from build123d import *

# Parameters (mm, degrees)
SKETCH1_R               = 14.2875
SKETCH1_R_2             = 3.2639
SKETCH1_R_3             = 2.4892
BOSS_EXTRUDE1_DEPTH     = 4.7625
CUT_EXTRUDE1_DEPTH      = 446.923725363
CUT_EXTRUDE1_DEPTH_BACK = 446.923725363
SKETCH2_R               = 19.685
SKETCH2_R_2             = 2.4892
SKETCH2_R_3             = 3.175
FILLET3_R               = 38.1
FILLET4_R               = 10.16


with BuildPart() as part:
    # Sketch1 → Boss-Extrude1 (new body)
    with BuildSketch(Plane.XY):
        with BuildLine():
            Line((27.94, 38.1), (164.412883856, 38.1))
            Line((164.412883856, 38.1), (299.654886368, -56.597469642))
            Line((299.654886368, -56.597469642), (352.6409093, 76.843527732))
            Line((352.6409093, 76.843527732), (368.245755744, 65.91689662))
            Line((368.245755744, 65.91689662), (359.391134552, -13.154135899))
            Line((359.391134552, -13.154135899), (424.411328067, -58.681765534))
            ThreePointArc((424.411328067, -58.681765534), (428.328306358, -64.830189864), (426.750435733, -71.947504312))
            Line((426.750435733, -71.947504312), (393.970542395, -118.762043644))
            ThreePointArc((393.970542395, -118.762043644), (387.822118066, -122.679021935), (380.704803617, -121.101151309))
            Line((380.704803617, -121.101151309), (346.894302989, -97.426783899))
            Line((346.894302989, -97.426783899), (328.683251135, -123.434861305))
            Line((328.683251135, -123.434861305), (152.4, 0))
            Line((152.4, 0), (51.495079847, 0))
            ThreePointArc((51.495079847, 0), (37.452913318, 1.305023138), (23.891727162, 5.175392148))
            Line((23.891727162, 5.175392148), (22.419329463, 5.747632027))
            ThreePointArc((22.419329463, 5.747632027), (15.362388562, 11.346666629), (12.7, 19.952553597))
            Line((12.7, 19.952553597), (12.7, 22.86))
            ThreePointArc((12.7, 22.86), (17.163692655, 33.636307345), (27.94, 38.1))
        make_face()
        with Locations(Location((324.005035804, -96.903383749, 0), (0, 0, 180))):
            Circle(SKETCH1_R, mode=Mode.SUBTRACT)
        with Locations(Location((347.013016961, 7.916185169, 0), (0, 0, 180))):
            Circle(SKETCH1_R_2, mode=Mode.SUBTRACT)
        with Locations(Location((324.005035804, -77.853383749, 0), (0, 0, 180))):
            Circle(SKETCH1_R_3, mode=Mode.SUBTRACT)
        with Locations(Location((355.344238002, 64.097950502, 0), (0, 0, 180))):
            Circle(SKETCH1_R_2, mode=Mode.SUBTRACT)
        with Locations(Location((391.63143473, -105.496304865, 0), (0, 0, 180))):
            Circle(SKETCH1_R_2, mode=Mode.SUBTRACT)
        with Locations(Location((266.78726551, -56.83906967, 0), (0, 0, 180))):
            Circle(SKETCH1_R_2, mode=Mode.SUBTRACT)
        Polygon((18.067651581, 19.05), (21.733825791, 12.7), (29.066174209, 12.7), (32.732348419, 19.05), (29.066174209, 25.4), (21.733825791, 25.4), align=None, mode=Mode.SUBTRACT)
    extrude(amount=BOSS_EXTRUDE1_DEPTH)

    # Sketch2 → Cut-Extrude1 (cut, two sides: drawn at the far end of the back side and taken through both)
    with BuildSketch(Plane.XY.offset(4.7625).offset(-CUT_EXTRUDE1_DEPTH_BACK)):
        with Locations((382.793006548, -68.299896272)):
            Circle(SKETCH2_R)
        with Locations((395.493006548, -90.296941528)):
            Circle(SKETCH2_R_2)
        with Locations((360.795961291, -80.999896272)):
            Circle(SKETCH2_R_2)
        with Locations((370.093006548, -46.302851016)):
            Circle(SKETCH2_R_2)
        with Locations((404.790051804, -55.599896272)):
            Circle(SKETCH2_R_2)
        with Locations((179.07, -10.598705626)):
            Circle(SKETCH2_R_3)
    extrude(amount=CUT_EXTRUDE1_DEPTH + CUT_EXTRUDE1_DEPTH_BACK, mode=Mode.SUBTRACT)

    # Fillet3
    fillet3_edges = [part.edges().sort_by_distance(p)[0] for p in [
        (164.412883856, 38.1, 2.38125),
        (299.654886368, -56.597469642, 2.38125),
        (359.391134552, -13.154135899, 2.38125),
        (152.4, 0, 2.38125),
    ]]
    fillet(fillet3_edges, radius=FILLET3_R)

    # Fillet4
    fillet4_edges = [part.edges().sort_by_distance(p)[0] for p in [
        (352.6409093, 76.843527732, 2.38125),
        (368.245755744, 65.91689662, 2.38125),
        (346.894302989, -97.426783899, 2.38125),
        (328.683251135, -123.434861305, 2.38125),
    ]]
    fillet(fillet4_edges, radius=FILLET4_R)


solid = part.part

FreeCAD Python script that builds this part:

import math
import FreeCAD as App
import Part
import Sketcher
Q = App.Units.Quantity


def edges_at(feature, points):
    """Names of the edges that pass closest to the given points."""
    edges = feature.Shape.Edges
    near = lambda p: min(range(len(edges)), key=lambda i: edges[i].distToShape(Part.Vertex(*p))[0])
    return sorted({f"Edge{near(p) + 1}" for p in points})

doc = App.newDocument("Part")
body = doc.addObject("PartDesign::Body", "Body")

sketch1 = body.newObject("Sketcher::SketchObject", "Sketch")
sketch1.AttachmentSupport = (doc.getObject("XY_Plane"), [""])
sketch1.MapMode = "FlatFace"
sketch1.addGeometry(Part.LineSegment(App.Vector(164.4, 38.1, 0), App.Vector(27.9, 38.1, 0)), False)
sketch1.addGeometry(Part.ArcOfCircle(Part.Circle(App.Vector(27.9, 22.9, 0), App.Vector(0, 0, 1), 15.2), math.radians(90), math.radians(180)), False)
sketch1.addGeometry(Part.LineSegment(App.Vector(12.7, 22.9, 0), App.Vector(12.7, 20, 0)), False)
sketch1.addGeometry(Part.ArcOfCircle(Part.Circle(App.Vector(27.9, 20, 0), App.Vector(0, 0, 1), 15.2), math.radians(-180), math.radians(-111)), False)
sketch1.addGeometry(Part.LineSegment(App.Vector(22.4, 5.7, 0), App.Vector(23.9, 5.2, 0)), False)
sketch1.addGeometry(Part.ArcOfCircle(Part.Circle(App.Vector(51.5, 76.2, 0), App.Vector(0, 0, 1), 76.2), math.radians(-111), math.radians(-90)), False)
sketch1.addGeometry(Part.LineSegment(App.Vector(51.5, 0, 0), App.Vector(152.4, 0, 0)), False)
sketch1.addGeometry(Part.LineSegment(App.Vector(152.4, 0, 0), App.Vector(328.7, -123.4, 0)), False)
sketch1.addGeometry(Part.LineSegment(App.Vector(328.7, -123.4, 0), App.Vector(346.9, -97.4, 0)), False)
sketch1.addGeometry(Part.LineSegment(App.Vector(346.9, -97.4, 0), App.Vector(380.7, -121.1, 0)), False)
sketch1.addGeometry(Part.ArcOfCircle(Part.Circle(App.Vector(386.2, -113.3, 0), App.Vector(0, 0, 1), 9.5), math.radians(-125), math.radians(-35)), False)
sketch1.addGeometry(Part.LineSegment(App.Vector(394, -118.8, 0), App.Vector(426.8, -71.9, 0)), False)
sketch1.addGeometry(Part.ArcOfCircle(Part.Circle(App.Vector(418.9, -66.5, 0), App.Vector(0, 0, 1), 9.5), math.radians(-35), math.radians(55)), False)
sketch1.addGeometry(Part.LineSegment(App.Vector(424.4, -58.7, 0), App.Vector(359.4, -13.2, 0)), False)
sketch1.addGeometry(Part.LineSegment(App.Vector(359.4, -13.2, 0), App.Vector(368.2, 65.9, 0)), False)
sketch1.addGeometry(Part.LineSegment(App.Vector(368.2, 65.9, 0), App.Vector(352.6, 76.8, 0)), False)
sketch1.addGeometry(Part.LineSegment(App.Vector(352.6, 76.8, 0), App.Vector(299.7, -56.6, 0)), False)
sketch1.addGeometry(Part.LineSegment(App.Vector(299.7, -56.6, 0), App.Vector(164.4, 38.1, 0)), False)
sketch1.addGeometry(Part.Circle(App.Vector(391.6, -105.5, 0), App.Vector(0, 0, 1), 3.3), False)
sketch1.addGeometry(Part.Circle(App.Vector(324, -96.9, 0), App.Vector(0, 0, 1), 14.3), False)
sketch1.addGeometry(Part.Circle(App.Vector(324, -77.9, 0), App.Vector(0, 0, 1), 2.5), False)
sketch1.addGeometry(Part.Circle(App.Vector(266.8, -56.8, 0), App.Vector(0, 0, 1), 3.3), False)
sketch1.addGeometry(Part.Circle(App.Vector(347, 7.9, 0), App.Vector(0, 0, 1), 3.3), False)
sketch1.addGeometry(Part.Circle(App.Vector(355.3, 64.1, 0), App.Vector(0, 0, 1), 3.3), False)
sketch1.addGeometry(Part.LineSegment(App.Vector(18.1, 19.1, 0), App.Vector(21.7, 25.4, 0)), False)
sketch1.addGeometry(Part.LineSegment(App.Vector(21.7, 25.4, 0), App.Vector(29.1, 25.4, 0)), False)
sketch1.addGeometry(Part.LineSegment(App.Vector(29.1, 25.4, 0), App.Vector(32.7, 19.1, 0)), False)
sketch1.addGeometry(Part.LineSegment(App.Vector(32.7, 19.1, 0), App.Vector(29.1, 12.7, 0)), False)
sketch1.addGeometry(Part.LineSegment(App.Vector(29.1, 12.7, 0), App.Vector(21.7, 12.7, 0)), False)
sketch1.addGeometry(Part.LineSegment(App.Vector(21.7, 12.7, 0), App.Vector(18.1, 19.1, 0)), False)
sketch1.addConstraint(Sketcher.Constraint("Tangent", 0, 2, 1, 1))
sketch1.addConstraint(Sketcher.Constraint("Tangent", 1, 2, 2, 1))
sketch1.addConstraint(Sketcher.Constraint("Tangent", 2, 2, 3, 1))
sketch1.addConstraint(Sketcher.Constraint("Tangent", 3, 2, 4, 1))
sketch1.addConstraint(Sketcher.Constraint("Tangent", 4, 2, 5, 1))
sketch1.addConstraint(Sketcher.Constraint("Tangent", 5, 2, 6, 1))
sketch1.addConstraint(Sketcher.Constraint("Coincident", 6, 2, 7, 1))
sketch1.addConstraint(Sketcher.Constraint("Coincident", 7, 2, 8, 1))
sketch1.addConstraint(Sketcher.Constraint("Coincident", 8, 2, 9, 1))
sketch1.addConstraint(Sketcher.Constraint("Tangent", 9, 2, 10, 1))
sketch1.addConstraint(Sketcher.Constraint("Tangent", 10, 2, 11, 1))
sketch1.addConstraint(Sketcher.Constraint("Tangent", 11, 2, 12, 1))
sketch1.addConstraint(Sketcher.Constraint("Tangent", 12, 2, 13, 1))
sketch1.addConstraint(Sketcher.Constraint("Coincident", 13, 2, 14, 1))
sketch1.addConstraint(Sketcher.Constraint("Coincident", 14, 2, 15, 1))
sketch1.addConstraint(Sketcher.Constraint("Coincident", 15, 2, 16, 1))
sketch1.addConstraint(Sketcher.Constraint("Coincident", 16, 2, 17, 1))
sketch1.addConstraint(Sketcher.Constraint("Coincident", 17, 2, 0, 1))
sketch1.addConstraint(Sketcher.Constraint("Coincident", 24, 2, 25, 1))
sketch1.addConstraint(Sketcher.Constraint("Coincident", 25, 2, 26, 1))
sketch1.addConstraint(Sketcher.Constraint("Coincident", 26, 2, 27, 1))
sketch1.addConstraint(Sketcher.Constraint("Coincident", 27, 2, 28, 1))
sketch1.addConstraint(Sketcher.Constraint("Coincident", 28, 2, 29, 1))
sketch1.addConstraint(Sketcher.Constraint("Coincident", 29, 2, 24, 1))
sketch1.addConstraint(Sketcher.Constraint("Horizontal", 0))
sketch1.addConstraint(Sketcher.Constraint("Vertical", 2))
sketch1.addConstraint(Sketcher.Constraint("Horizontal", 6))
sketch1.addConstraint(Sketcher.Constraint("Horizontal", 25))
sketch1.addConstraint(Sketcher.Constraint("Horizontal", 28))
sketch1.addConstraint(Sketcher.Constraint("Equal", 1, 3))
sketch1.addConstraint(Sketcher.Constraint("Equal", 10, 12))
sketch1.addConstraint(Sketcher.Constraint("Equal", 18, 21))
sketch1.addConstraint(Sketcher.Constraint("Equal", 21, 22))
sketch1.addConstraint(Sketcher.Constraint("Equal", 22, 23))
sketch1.addConstraint(Sketcher.Constraint("PointOnObject", 5, 2, -1))
sketch1.addConstraint(Sketcher.Constraint("Perpendicular", 7, 8))
sketch1.addConstraint(Sketcher.Constraint("Perpendicular", 8, 9))
sketch1.addConstraint(Sketcher.Constraint("Perpendicular", 9, 11))
sketch1.addConstraint(Sketcher.Constraint("Perpendicular", 11, 13))
sketch1.addConstraint(Sketcher.Constraint("Parallel", 13, 15))
sketch1.addConstraint(Sketcher.Constraint("Parallel", 15, 17))
sketch1.addConstraint(Sketcher.Constraint("Parallel", 24, 27))
sketch1.addConstraint(Sketcher.Constraint("Parallel", 26, 29))
sketch1.addConstraint(Sketcher.Constraint("Horizontal", 26, 2, 29, 2))
sketch1.addConstraint(Sketcher.Constraint("Vertical", 19, 3, 20, 3))
sketch1.addConstraint(Sketcher.Constraint("Vertical", 25, 2, 27, 2))
sketch1.addConstraint(Sketcher.Constraint("Vertical", 24, 2, 28, 2))
sketch1.addConstraint(Sketcher.Constraint("Radius", 5, Q("3 in")))
sketch1.addConstraint(Sketcher.Constraint("Radius", 1, Q("0.6 in")))
sketch1.addConstraint(Sketcher.Constraint("Diameter", 18, Q("0.257 in")))
sketch1.addConstraint(Sketcher.Constraint("Diameter", 19, Q("1.125 in")))
sketch1.addConstraint(Sketcher.Constraint("Diameter", 20, Q("0.196 in")))
sketch1.addConstraint(Sketcher.Constraint("DistanceX", -1, 1, 6, 2, Q("6 in")))
sketch1.addConstraint(Sketcher.Constraint("DistanceY", -1, 1, 24, 2, Q("1 in")))
sketch1.addConstraint(Sketcher.Constraint("Angle", 7, Q("-35 deg")))
sketch1.addConstraint(Sketcher.Constraint("Angle", 24, Q("60 deg")))
sketch1.addConstraint(Sketcher.Constraint("Radius", 10, Q("0.375 in")))
sketch1.addConstraint(Sketcher.Constraint("Distance", 17, Q("6.5 in")))
sketch1.addConstraint(Sketcher.Constraint("DistanceX", -1, 1, 1, 3, Q("1.1 in")))
sketch1.addConstraint(Sketcher.Constraint("DistanceY", -1, 1, 1, 3, Q("0.9 in")))
sketch1.addConstraint(Sketcher.Constraint("DistanceY", -1, 1, 27, 2, Q("0.5 in")))
sketch1.addConstraint(Sketcher.Constraint("Distance", 8, Q("1.25 in")))
sketch1.addConstraint(Sketcher.Constraint("Distance", 11, Q("2.25 in")))
sketch1.addConstraint(Sketcher.Constraint("Distance", 15, Q("0.75 in")))
sketch1.addConstraint(Sketcher.Constraint("DistanceY", 19, 3, 20, 3, Q("0.75 in")))
sketch1.addConstraint(Sketcher.Constraint("Distance", 9, Q("1.625 in")))
sketch1.addConstraint(Sketcher.Constraint("Distance", 13, Q("3.125 in")))
sketch1.addConstraint(Sketcher.Constraint("DistanceY", 8, 2, -1, 1, Q("3.8357002 in")))
sketch1.addConstraint(Sketcher.Constraint("DistanceY", 21, 3, 23, 3, Q("4.7613 in")))
sketch1.addConstraint(Sketcher.Constraint("DistanceX", 6, 1, 6, 2, Q("100.90492 mm")))
sketch1.addConstraint(Sketcher.Constraint("DistanceX", 25, 1, 25, 2, Q("7.332348 mm")))
sketch1.addConstraint(Sketcher.Constraint("DistanceX", 19, 3, 18, 3, Q("67.626399 mm")))
sketch1.addConstraint(Sketcher.Constraint("DistanceY", 8, 2, 19, 3, Q("0.5234 mm")))
sketch1.addConstraint(Sketcher.Constraint("DistanceX", 18, 3, 11, 2, Q("35.119001 mm")))
sketch1.addConstraint(Sketcher.Constraint("DistanceY", 18, 3, 11, 2, Q("33.548801 mm")))
sketch1.addConstraint(Sketcher.Constraint("DistanceY", 21, 3, 16, 2, Q("0.2416 mm")))
sketch1.addConstraint(Sketcher.Constraint("DistanceX", 28, 2, 4, 2, Q("2.157901 mm")))
sketch1.addConstraint(Sketcher.Constraint("Distance", 14, Q("79.565272 mm")))
sketch1.addConstraint(Sketcher.Constraint("Distance", 16, Q("143.575828 mm")))
sketch1.addConstraint(Sketcher.Constraint("DistanceX", 0, 2, 0, 1, Q("136.472884 mm")))
sketch1.addConstraint(Sketcher.Constraint("DistanceY", 2, 2, 2, 1, Q("2.907446 mm")))
sketch1.addConstraint(Sketcher.Constraint("DistanceX", -1, 1, 23, 3, Q("355.344238 mm")))
sketch1.addConstraint(Sketcher.Constraint("DistanceX", 21, 3, 20, 3, Q("57.21777 mm")))
sketch1.addConstraint(Sketcher.Constraint("DistanceX", 20, 3, 22, 3, Q("23.007981 mm")))
sketch1.addConstraint(Sketcher.Constraint("DistanceY", 20, 3, 22, 3, Q("85.769569 mm")))
pad1 = body.newObject("PartDesign::Pad", "Pad")
pad1.Profile = sketch1
pad1.Length = Q("0.1875 in")

sketch2 = body.newObject("Sketcher::SketchObject", "Sketch001")
sketch2.AttachmentSupport = (doc.getObject("XY_Plane"), [""])
sketch2.MapMode = "FlatFace"
sketch2.AttachmentOffset = App.Placement(App.Vector(0, 0, 0.1875 * 25.4), App.Rotation())
sketch2.addGeometry(Part.Circle(App.Vector(382.8, -68.3, 0), App.Vector(0, 0, 1), 19.7), False)
sketch2.addGeometry(Part.Circle(App.Vector(395.5, -90.3, 0), App.Vector(0, 0, 1), 2.5), False)
sketch2.addGeometry(Part.Circle(App.Vector(360.8, -81, 0), App.Vector(0, 0, 1), 2.5), False)
sketch2.addGeometry(Part.Circle(App.Vector(370.1, -46.3, 0), App.Vector(0, 0, 1), 2.5), False)
sketch2.addGeometry(Part.Circle(App.Vector(404.8, -55.6, 0), App.Vector(0, 0, 1), 2.5), False)
sketch2.addGeometry(Part.Circle(App.Vector(179.1, -10.6, 0), App.Vector(0, 0, 1), 3.2), False)
sketch2.addConstraint(Sketcher.Constraint("Equal", 1, 2))
sketch2.addConstraint(Sketcher.Constraint("Equal", 2, 3))
sketch2.addConstraint(Sketcher.Constraint("Equal", 3, 4))
sketch2.addConstraint(Sketcher.Constraint("Diameter", 0, Q("1.55 in")))
sketch2.addConstraint(Sketcher.Constraint("Diameter", 5, Q("0.25 in")))
sketch2.addConstraint(Sketcher.Constraint("Diameter", 1, Q("0.196 in")))
sketch2.addConstraint(Sketcher.Constraint("DistanceX", 3, 3, 1, 3, Q("1 in")))
sketch2.addConstraint(Sketcher.Constraint("DistanceY", 2, 3, 4, 3, Q("1 in")))
sketch2.addConstraint(Sketcher.Constraint("DistanceX", 0, 3, 1, 3, Q("0.5 in")))
sketch2.addConstraint(Sketcher.Constraint("DistanceY", 2, 3, 0, 3, Q("0.5 in")))
sketch2.addConstraint(Sketcher.Constraint("DistanceX", -1, 1, 5, 3, Q("7.05 in")))
sketch2.addConstraint(Sketcher.Constraint("DistanceY", 1, 3, -1, 1, Q("90.296942 mm")))
sketch2.addConstraint(Sketcher.Constraint("DistanceX", -1, 1, 2, 3, Q("360.795961 mm")))
sketch2.addConstraint(Sketcher.Constraint("DistanceY", 3, 3, -1, 1, Q("46.302851 mm")))
sketch2.addConstraint(Sketcher.Constraint("DistanceX", -1, 1, 4, 3, Q("404.790052 mm")))
sketch2.addConstraint(Sketcher.Constraint("DistanceY", 2, 3, 5, 3, Q("70.401191 mm")))
sketch2.addConstraint(Sketcher.Constraint("DistanceX", -1, 1, 0, 3, Q("382.793007 mm")))
sketch2.addConstraint(Sketcher.Constraint("DistanceY", 0, 3, -1, 1, Q("68.299896 mm")))
pocket1 = body.newObject("PartDesign::Pocket", "Pocket")
pocket1.Profile = sketch2
pocket1.Type = "ThroughAll"
pocket1.Midplane = True
doc.recompute()

fillet = body.newObject("PartDesign::Fillet", "Fillet")
fillet.Base = (pocket1, edges_at(pocket1, [
    (164.413, 38.1, 2.381),
    (299.655, -56.597, 2.381),
    (359.391, -13.154, 2.381),
    (152.4, 0, 2.381),
]))
fillet.Radius = Q("1.5 in")
doc.recompute()

fillet2 = body.newObject("PartDesign::Fillet", "Fillet001")
fillet2.Base = (fillet, edges_at(fillet, [
    (352.641, 76.844, 2.381),
    (368.246, 65.917, 2.381),
    (346.894, -97.427, 2.381),
    (328.683, -123.435, 2.381),
]))
fillet2.Radius = Q("0.4 in")

doc.recompute()
